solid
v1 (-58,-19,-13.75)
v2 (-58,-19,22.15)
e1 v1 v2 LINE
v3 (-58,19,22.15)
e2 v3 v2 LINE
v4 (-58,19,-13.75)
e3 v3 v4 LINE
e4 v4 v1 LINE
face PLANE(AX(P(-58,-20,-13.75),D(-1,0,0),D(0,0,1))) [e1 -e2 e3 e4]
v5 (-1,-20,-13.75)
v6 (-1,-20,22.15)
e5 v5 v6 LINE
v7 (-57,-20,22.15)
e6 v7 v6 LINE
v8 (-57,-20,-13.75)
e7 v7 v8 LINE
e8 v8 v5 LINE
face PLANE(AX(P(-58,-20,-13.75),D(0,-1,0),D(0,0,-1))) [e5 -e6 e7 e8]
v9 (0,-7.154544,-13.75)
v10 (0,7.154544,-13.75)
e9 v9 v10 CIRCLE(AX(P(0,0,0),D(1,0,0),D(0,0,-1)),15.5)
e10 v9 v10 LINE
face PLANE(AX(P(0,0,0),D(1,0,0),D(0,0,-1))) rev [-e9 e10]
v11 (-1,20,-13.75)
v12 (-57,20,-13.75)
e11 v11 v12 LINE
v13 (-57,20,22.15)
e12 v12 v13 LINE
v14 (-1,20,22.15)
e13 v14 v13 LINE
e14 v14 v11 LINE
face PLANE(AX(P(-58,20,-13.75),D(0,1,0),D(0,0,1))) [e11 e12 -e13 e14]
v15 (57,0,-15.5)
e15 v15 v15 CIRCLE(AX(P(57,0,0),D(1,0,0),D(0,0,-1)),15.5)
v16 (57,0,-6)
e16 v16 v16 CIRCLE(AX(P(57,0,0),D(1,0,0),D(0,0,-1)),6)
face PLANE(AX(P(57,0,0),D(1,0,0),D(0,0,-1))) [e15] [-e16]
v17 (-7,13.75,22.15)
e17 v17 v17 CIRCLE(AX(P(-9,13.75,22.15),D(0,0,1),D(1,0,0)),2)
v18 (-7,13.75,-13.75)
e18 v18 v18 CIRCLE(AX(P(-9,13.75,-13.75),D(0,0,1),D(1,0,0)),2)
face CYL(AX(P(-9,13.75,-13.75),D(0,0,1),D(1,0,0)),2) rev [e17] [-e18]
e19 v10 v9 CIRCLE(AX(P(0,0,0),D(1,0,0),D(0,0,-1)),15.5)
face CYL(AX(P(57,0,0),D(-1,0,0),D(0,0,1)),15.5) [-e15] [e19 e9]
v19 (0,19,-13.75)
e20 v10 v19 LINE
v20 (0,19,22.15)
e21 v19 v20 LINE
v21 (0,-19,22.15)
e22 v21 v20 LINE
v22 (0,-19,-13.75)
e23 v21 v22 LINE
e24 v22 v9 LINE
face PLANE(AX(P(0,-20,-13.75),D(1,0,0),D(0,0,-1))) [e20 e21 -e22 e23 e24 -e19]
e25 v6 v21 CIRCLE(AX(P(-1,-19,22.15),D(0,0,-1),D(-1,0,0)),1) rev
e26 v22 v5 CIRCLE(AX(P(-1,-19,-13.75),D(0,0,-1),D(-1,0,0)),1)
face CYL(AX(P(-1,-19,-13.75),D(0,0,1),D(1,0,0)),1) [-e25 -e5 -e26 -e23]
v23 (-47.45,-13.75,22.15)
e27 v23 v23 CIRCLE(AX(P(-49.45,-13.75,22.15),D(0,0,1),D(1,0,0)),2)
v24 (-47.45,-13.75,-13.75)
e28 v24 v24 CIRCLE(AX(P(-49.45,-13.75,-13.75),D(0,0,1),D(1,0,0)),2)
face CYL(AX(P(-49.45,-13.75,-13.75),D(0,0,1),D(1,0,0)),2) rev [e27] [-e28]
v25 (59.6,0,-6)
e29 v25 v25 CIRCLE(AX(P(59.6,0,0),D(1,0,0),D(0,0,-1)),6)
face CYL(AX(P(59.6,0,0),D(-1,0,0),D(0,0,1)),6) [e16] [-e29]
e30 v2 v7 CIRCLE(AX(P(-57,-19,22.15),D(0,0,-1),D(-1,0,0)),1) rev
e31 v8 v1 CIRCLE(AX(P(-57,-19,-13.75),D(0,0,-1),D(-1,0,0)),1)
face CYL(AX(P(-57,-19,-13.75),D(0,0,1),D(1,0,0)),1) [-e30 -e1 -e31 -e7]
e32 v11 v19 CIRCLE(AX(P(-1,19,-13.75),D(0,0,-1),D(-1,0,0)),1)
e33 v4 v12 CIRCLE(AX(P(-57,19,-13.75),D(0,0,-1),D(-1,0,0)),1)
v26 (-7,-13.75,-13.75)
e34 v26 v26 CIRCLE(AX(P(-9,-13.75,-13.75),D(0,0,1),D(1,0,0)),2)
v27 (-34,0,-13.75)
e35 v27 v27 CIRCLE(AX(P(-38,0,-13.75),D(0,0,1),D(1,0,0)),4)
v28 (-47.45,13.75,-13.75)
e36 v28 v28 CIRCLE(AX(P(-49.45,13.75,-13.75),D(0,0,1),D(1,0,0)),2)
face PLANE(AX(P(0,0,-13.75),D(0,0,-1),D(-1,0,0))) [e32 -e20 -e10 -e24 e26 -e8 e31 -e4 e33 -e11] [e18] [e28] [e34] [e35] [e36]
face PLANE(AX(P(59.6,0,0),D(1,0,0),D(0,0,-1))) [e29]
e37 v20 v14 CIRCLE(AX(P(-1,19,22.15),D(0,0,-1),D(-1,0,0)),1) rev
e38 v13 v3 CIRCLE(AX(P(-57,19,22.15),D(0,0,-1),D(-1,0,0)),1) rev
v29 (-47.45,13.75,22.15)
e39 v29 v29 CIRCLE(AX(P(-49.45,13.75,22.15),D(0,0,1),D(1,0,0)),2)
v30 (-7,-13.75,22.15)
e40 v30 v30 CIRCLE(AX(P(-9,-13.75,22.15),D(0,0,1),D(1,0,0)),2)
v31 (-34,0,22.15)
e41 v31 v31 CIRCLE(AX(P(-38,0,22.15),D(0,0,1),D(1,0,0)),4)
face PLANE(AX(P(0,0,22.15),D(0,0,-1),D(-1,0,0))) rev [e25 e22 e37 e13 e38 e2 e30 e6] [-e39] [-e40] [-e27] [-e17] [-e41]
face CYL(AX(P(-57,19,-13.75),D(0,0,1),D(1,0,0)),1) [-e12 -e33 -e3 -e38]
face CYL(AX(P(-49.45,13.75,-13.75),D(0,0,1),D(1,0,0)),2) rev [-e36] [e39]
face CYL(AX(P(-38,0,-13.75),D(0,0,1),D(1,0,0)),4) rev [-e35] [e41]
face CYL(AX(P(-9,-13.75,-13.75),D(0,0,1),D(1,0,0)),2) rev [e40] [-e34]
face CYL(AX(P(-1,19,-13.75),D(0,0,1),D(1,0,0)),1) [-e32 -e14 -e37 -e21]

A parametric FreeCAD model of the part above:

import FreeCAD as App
import Part
import Sketcher
Q = App.Units.Quantity


def edges_at(feature, points):
    """Names of the edges that pass closest to the given points."""
    edges = feature.Shape.Edges
    near = lambda p: min(range(len(edges)), key=lambda i: edges[i].distToShape(Part.Vertex(*p))[0])
    return sorted({f"Edge{near(p) + 1}" for p in points})

doc = App.newDocument("Part")
params = doc.addObject("Spreadsheet::Sheet", "Params")
for row, (alias, value) in enumerate([
    ("sketch1_diameter", "31 mm"),
    ("pad1_length", "57 mm"),
    ("sketch2_diameter", "12 mm"),
    ("pad2_length", "2.6 mm"),
    ("sketch3_diameter", "4 mm"),
    ("sketch3_diameter2", "8 mm"),
    ("sketch3_width", "58 mm"),
    ("sketch3_height", "40 mm"),
    ("pad3_length", "22.15 mm"),
    ("pad3_length2", "13.75 mm"),
    ("fillet_radius", "1 mm"),
], start=1):
    params.set(f"A{row}", alias)
    params.set(f"B{row}", "=" + value)
    params.setAlias(f"B{row}", alias)

body = doc.addObject("PartDesign::Body", "Body")

sketch1 = doc.addObject("Sketcher::SketchObject", "Sketch")
body.addObject(sketch1)
sketch1.AttachmentSupport = (doc.YZ_Plane, [""])
sketch1.MapMode = "FlatFace"
sketch1.addGeometry(Part.Circle(App.Vector(0, 0, 0), App.Vector(0, 0, 1), 15.5), False)
sketch1.addConstraint(Sketcher.Constraint("Coincident", 0, 3, -1, 1))
sketch1.addConstraint(Sketcher.Constraint("Diameter", 0, Q("31 mm")))
sketch1.setExpression("Constraints[1]", "Params.sketch1_diameter")
pad1 = doc.addObject("PartDesign::Pad", "Pad")
body.addObject(pad1)
pad1.Profile = sketch1
pad1.setExpression("Length", "Params.pad1_length")

sketch2 = doc.addObject("Sketcher::SketchObject", "Sketch001")
body.addObject(sketch2)
sketch2.AttachmentSupport = (doc.YZ_Plane, [""])
sketch2.MapMode = "FlatFace"
sketch2.AttachmentOffset = App.Placement(App.Vector(0, 0, 57), App.Rotation())
sketch2.addGeometry(Part.Circle(App.Vector(0, 0, 0), App.Vector(0, 0, 1), 6), False)
sketch2.addConstraint(Sketcher.Constraint("Coincident", 0, 3, -1, 1))
sketch2.addConstraint(Sketcher.Constraint("Diameter", 0, Q("12 mm")))
sketch2.setExpression("Constraints[1]", "Params.sketch2_diameter")
pad2 = doc.addObject("PartDesign::Pad", "Pad001")
body.addObject(pad2)
pad2.Profile = sketch2
pad2.setExpression("Length", "Params.pad2_length")

sketch3 = doc.addObject("Sketcher::SketchObject", "Sketch002")
body.addObject(sketch3)
sketch3.AttachmentSupport = (doc.XY_Plane, [""])
sketch3.MapMode = "FlatFace"
sketch3.addGeometry(Part.LineSegment(App.Vector(-58, 20, 0), App.Vector(-58, -20, 0)), False)
sketch3.addGeometry(Part.LineSegment(App.Vector(-58, -20, 0), App.Vector(0, -20, 0)), False)
sketch3.addGeometry(Part.LineSegment(App.Vector(0, -20, 0), App.Vector(0, 20, 0)), False)
sketch3.addGeometry(Part.LineSegment(App.Vector(0, 20, 0), App.Vector(-58, 20, 0)), False)
sketch3.addGeometry(Part.Circle(App.Vector(-49.45, -13.75, 0), App.Vector(0, 0, 1), 2), False)
sketch3.addGeometry(Part.Circle(App.Vector(-9, -13.75, 0), App.Vector(0, 0, 1), 2), False)
sketch3.addGeometry(Part.Circle(App.Vector(-38, 0, 0), App.Vector(0, 0, 1), 4), False)
sketch3.addGeometry(Part.Circle(App.Vector(-49.45, 13.75, 0), App.Vector(0, 0, 1), 2), False)
sketch3.addGeometry(Part.Circle(App.Vector(-9, 13.75, 0), App.Vector(0, 0, 1), 2), False)
sketch3.addConstraint(Sketcher.Constraint("Coincident", 0, 2, 1, 1))
sketch3.addConstraint(Sketcher.Constraint("Coincident", 1, 2, 2, 1))
sketch3.addConstraint(Sketcher.Constraint("Coincident", 2, 2, 3, 1))
sketch3.addConstraint(Sketcher.Constraint("Coincident", 3, 2, 0, 1))
sketch3.addConstraint(Sketcher.Constraint("Vertical", 0))
sketch3.addConstraint(Sketcher.Constraint("Horizontal", 1))
sketch3.addConstraint(Sketcher.Constraint("Vertical", 2))
sketch3.addConstraint(Sketcher.Constraint("Horizontal", 3))
sketch3.addConstraint(Sketcher.Constraint("Equal", 4, 5))
sketch3.addConstraint(Sketcher.Constraint("Equal", 5, 7))
sketch3.addConstraint(Sketcher.Constraint("Equal", 7, 8))
sketch3.addConstraint(Sketcher.Constraint("Symmetric", 1, 2, 2, 2, -1, 1))
sketch3.addConstraint(Sketcher.Constraint("Symmetric", 4, 3, 7, 3, -1))
sketch3.addConstraint(Sketcher.Constraint("Symmetric", 5, 3, 8, 3, -1))
sketch3.addConstraint(Sketcher.Constraint("PointOnObject", 6, 3, -1))
sketch3.addConstraint(Sketcher.Constraint("Horizontal", 4, 3, 5, 3))
sketch3.addConstraint(Sketcher.Constraint("Diameter", 4, Q("4 mm")))
sketch3.addConstraint(Sketcher.Constraint("Diameter", 6, Q("8 mm")))
sketch3.addConstraint(Sketcher.Constraint("DistanceX", 1, 1, 1, 2, Q("58 mm")))
sketch3.addConstraint(Sketcher.Constraint("DistanceY", 0, 2, 0, 1, Q("40 mm")))
sketch3.addConstraint(Sketcher.Constraint("DistanceX", 5, 3, -1, 1, Q("9 mm")))
sketch3.addConstraint(Sketcher.Constraint("DistanceX", 6, 3, -1, 1, Q("38 mm")))
sketch3.addConstraint(Sketcher.Constraint("DistanceY", 4, 3, 7, 3, Q("27.5 mm")))
sketch3.addConstraint(Sketcher.Constraint("DistanceX", 4, 3, -1, 1, Q("49.45 mm")))
sketch3.setExpression("Constraints[16]", "Params.sketch3_diameter")
sketch3.setExpression("Constraints[17]", "Params.sketch3_diameter2")
sketch3.setExpression("Constraints[18]", "Params.sketch3_width")
sketch3.setExpression("Constraints[19]", "Params.sketch3_height")
pad3 = doc.addObject("PartDesign::Pad", "Pad002")
body.addObject(pad3)
pad3.Profile = sketch3
pad3.Type = "TwoLengths"
pad3.setExpression("Length", "Params.pad3_length")
pad3.setExpression("Length2", "Params.pad3_length2")
doc.recompute()

fillet = doc.addObject("PartDesign::Fillet", "Fillet")
body.addObject(fillet)
fillet.Base = (pad3, edges_at(pad3, [
    (0, 20, 4.2),
    (0, -20, 4.2),
    (-58, -20, 4.2),
    (-58, 20, 4.2),
]))
fillet.setExpression("Radius", "Params.fillet_radius")

doc.recompute()
